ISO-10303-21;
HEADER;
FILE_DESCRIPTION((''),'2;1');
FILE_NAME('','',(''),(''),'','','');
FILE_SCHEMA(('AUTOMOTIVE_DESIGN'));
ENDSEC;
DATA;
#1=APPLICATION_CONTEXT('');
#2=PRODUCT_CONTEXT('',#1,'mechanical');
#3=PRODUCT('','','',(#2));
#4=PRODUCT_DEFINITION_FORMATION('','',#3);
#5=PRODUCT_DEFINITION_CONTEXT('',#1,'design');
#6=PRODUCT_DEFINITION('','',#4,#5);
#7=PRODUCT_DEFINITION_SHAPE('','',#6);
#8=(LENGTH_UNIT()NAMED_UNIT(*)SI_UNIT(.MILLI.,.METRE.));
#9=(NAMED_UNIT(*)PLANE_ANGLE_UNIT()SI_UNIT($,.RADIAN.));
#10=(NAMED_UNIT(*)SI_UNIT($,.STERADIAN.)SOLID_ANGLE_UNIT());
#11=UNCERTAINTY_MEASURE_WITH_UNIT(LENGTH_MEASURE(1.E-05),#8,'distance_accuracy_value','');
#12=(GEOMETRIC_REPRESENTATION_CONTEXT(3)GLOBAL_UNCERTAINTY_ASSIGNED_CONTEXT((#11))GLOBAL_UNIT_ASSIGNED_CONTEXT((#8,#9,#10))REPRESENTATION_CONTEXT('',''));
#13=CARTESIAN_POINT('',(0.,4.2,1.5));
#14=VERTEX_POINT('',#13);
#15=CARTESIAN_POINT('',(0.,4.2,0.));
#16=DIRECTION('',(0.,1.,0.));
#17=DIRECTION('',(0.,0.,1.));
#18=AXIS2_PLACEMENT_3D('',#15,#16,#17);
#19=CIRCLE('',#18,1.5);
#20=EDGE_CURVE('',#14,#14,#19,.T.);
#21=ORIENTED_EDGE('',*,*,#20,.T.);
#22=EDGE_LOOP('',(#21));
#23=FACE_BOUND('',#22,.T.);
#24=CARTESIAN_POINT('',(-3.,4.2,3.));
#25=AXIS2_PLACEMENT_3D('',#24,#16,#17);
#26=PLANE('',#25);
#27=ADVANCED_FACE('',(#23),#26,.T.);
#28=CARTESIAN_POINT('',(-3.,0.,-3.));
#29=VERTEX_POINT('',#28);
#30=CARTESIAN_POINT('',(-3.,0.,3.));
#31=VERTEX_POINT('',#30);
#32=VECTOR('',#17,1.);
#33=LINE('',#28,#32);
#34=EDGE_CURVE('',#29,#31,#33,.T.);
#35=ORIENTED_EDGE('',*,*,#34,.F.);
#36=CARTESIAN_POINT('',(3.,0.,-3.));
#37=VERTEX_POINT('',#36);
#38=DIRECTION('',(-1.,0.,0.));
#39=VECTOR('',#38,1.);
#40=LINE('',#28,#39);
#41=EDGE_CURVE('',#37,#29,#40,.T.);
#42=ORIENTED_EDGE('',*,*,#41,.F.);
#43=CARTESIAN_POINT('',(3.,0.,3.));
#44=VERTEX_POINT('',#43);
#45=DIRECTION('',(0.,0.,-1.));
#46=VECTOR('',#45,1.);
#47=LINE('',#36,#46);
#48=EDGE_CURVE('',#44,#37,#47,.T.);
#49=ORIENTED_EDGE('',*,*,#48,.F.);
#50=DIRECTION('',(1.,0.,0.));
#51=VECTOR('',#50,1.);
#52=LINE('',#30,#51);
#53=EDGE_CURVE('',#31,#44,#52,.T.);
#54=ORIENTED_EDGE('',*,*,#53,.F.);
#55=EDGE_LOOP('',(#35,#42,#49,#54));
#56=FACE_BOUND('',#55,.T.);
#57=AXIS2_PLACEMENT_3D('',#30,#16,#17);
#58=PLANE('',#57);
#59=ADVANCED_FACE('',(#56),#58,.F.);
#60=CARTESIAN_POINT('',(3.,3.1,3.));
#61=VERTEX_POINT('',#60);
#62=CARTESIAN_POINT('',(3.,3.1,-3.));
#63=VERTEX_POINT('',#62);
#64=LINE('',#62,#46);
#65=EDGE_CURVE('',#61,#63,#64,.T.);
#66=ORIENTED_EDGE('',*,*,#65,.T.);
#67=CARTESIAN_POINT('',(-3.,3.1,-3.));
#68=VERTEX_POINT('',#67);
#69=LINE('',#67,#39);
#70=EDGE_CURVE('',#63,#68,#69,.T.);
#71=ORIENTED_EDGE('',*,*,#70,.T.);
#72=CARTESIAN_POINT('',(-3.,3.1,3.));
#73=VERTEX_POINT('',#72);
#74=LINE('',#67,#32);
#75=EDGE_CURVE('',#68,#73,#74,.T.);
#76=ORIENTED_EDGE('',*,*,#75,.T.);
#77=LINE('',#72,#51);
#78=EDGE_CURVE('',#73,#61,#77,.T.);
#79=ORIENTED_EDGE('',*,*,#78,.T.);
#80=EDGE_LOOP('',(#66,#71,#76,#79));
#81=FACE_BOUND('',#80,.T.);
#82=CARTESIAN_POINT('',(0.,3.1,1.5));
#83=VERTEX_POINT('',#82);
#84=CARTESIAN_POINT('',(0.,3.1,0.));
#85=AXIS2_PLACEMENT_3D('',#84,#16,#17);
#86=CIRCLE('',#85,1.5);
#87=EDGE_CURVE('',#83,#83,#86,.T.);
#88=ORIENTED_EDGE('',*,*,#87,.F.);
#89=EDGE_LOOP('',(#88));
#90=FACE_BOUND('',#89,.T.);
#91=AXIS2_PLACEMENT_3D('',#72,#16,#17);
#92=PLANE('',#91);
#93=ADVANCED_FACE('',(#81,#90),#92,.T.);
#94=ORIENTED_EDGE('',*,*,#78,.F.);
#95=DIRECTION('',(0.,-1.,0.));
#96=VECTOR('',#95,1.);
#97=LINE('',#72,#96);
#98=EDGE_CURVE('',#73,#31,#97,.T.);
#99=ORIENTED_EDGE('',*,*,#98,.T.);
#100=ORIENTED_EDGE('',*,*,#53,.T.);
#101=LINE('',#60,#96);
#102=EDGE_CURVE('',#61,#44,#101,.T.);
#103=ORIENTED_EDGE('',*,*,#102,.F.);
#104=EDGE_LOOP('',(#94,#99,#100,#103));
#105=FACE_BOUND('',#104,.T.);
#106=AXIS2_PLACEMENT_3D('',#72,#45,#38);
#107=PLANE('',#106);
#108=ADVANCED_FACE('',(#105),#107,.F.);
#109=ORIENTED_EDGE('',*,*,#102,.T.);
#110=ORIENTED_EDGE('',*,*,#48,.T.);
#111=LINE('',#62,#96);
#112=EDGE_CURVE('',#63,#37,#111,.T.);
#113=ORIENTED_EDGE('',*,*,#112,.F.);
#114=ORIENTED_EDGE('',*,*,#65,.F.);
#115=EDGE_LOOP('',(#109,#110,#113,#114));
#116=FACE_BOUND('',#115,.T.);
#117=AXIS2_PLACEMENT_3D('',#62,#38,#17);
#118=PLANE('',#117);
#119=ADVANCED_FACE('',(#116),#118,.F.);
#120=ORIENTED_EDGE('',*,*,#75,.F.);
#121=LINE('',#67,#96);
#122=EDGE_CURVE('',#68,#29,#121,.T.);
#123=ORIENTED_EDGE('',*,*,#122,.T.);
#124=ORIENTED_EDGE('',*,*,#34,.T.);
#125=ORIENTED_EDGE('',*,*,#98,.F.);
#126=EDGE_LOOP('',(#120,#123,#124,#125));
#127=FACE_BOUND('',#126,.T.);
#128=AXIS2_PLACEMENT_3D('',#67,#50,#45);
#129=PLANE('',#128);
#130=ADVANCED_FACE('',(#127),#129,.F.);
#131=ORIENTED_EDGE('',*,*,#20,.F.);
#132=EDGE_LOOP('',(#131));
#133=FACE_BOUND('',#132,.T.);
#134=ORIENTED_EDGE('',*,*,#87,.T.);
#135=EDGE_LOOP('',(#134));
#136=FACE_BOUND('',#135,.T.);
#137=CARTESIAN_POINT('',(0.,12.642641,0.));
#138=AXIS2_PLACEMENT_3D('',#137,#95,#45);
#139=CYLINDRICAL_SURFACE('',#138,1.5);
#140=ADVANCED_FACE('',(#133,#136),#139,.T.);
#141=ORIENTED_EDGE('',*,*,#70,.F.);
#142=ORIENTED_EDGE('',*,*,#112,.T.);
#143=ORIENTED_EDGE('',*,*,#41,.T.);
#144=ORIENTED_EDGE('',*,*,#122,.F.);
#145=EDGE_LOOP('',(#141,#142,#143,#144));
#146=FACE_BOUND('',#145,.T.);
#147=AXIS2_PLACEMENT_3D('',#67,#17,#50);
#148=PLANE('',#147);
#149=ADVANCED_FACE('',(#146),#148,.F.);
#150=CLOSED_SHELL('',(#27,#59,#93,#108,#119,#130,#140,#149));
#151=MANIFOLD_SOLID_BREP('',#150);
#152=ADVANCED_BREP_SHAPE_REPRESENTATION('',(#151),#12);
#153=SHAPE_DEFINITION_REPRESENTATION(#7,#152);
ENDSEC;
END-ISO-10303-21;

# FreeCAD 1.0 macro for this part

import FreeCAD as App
import Part
import Sketcher
from FreeCAD import Vector
Q = App.Units.Quantity

doc = App.newDocument("Part")
body = doc.addObject("PartDesign::Body", "Body")

sketch1 = body.newObject("Sketcher::SketchObject", "Sketch")
sketch1.AttachmentSupport = (doc.getObject("XZ_Plane"), [""])
sketch1.MapMode = "FlatFace"
sketch1.addGeometry([
    Part.LineSegment(Vector(-3, -3, 0), Vector(-3, 3, 0)),
    Part.LineSegment(Vector(-3, 3, 0), Vector(3, 3, 0)),
    Part.LineSegment(Vector(3, 3, 0), Vector(3, -3, 0)),
    Part.LineSegment(Vector(3, -3, 0), Vector(-3, -3, 0)),
], False)
sketch1.addConstraint([
    Sketcher.Constraint("Coincident", 0, 2, 1, 1),
    Sketcher.Constraint("Coincident", 1, 2, 2, 1),
    Sketcher.Constraint("Coincident", 2, 2, 3, 1),
    Sketcher.Constraint("Coincident", 3, 2, 0, 1),
    Sketcher.Constraint("Vertical", 0),
    Sketcher.Constraint("Horizontal", 1),
    Sketcher.Constraint("Vertical", 2),
    Sketcher.Constraint("Horizontal", 3),
    Sketcher.Constraint("Symmetric", 0, 2, 2, 2, -1, 1),
    Sketcher.Constraint("Equal", 3, 0),
    Sketcher.Constraint("DistanceX", 1, 1, 1, 2, Q("6 mm")),
])
pad1 = body.newObject("PartDesign::Pad", "Pad")
pad1.Profile = sketch1
pad1.Length = 3.1
pad1.Reversed = True

sketch2 = body.newObject("Sketcher::SketchObject", "Sketch001")
sketch2.AttachmentSupport = (doc.getObject("XZ_Plane"), [""])
sketch2.MapMode = "FlatFace"
sketch2.AttachmentOffset = App.Placement(Vector(0, 0, -3.1), App.Rotation())
sketch2.addGeometry(Part.Circle(Vector(0, 0, 0), Vector(0, 0, 1), 1.5), False)
sketch2.addConstraint([
    Sketcher.Constraint("Coincident", 0, 3, -1, 1),
    Sketcher.Constraint("Diameter", 0, Q("3 mm")),
])
pad2 = body.newObject("PartDesign::Pad", "Pad001")
pad2.Profile = sketch2
pad2.Length = 1.1
pad2.Reversed = True

doc.recompute()
